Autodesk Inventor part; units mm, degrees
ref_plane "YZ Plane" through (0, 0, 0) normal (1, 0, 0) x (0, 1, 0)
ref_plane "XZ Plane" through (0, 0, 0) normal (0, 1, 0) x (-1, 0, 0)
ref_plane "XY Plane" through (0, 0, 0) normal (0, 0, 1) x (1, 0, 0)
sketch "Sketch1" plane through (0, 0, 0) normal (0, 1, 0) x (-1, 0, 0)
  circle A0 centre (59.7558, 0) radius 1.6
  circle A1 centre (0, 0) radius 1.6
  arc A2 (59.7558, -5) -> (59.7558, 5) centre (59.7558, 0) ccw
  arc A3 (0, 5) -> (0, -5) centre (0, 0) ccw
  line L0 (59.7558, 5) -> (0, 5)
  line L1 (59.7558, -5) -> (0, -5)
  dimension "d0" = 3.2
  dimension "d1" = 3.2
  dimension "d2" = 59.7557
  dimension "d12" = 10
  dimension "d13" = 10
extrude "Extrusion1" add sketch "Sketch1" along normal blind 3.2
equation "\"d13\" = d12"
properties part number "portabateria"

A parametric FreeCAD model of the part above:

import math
import FreeCAD as App
import Part
import Sketcher

V = App.Vector

doc = App.newDocument("Part")
body = doc.addObject("PartDesign::Body", "Body")

sketch1 = body.newObject("Sketcher::SketchObject", "Sketch")
sketch1.AttachmentSupport = (doc.getObject("XZ_Plane"), [""])
sketch1.MapMode = "FlatFace"
sketch1.addGeometry(Part.LineSegment(V(0, -5, 0), V(-59.8, -5, 0)), False)
sketch1.addGeometry(Part.ArcOfCircle(Part.Circle(V(-59.8, 0, 0), V(0, 0, 1), 5), math.radians(90), math.radians(270)), False)
sketch1.addGeometry(Part.LineSegment(V(-59.8, 5, 0), V(0, 5, 0)), False)
sketch1.addGeometry(Part.ArcOfCircle(Part.Circle(V(0, 0, 0), V(0, 0, 1), 5), math.radians(-90), math.radians(90)), False)
sketch1.addGeometry(Part.Circle(V(0, 0, 0), V(0, 0, 1), 1.6), False)
sketch1.addGeometry(Part.Circle(V(-59.8, 0, 0), V(0, 0, 1), 1.6), False)
sketch1.addConstraint(Sketcher.Constraint("Tangent", 0, 2, 1, 2))
sketch1.addConstraint(Sketcher.Constraint("Tangent", 1, 1, 2, 1))
sketch1.addConstraint(Sketcher.Constraint("Tangent", 2, 2, 3, 2))
sketch1.addConstraint(Sketcher.Constraint("Tangent", 3, 1, 0, 1))
sketch1.addConstraint(Sketcher.Constraint("Horizontal", 0))
sketch1.addConstraint(Sketcher.Constraint("Horizontal", 2))
sketch1.addConstraint(Sketcher.Constraint("Coincident", 3, 3, -1, 1))
sketch1.addConstraint(Sketcher.Constraint("Coincident", 4, 3, -1, 1))
sketch1.addConstraint(Sketcher.Constraint("Coincident", 5, 3, 1, 3))
sketch1.addConstraint(Sketcher.Constraint("Equal", 4, 5))
sketch1.addConstraint(Sketcher.Constraint("Radius", 1, 5.0))
sketch1.addConstraint(Sketcher.Constraint("Diameter", 4, 3.2))
sketch1.addConstraint(Sketcher.Constraint("DistanceX", 0, 2, 0, 1, 59.7558))
pad1 = body.newObject("PartDesign::Pad", "Pad")
pad1.Profile = sketch1
pad1.Length = 3.2
pad1.Reversed = True

doc.recompute()
